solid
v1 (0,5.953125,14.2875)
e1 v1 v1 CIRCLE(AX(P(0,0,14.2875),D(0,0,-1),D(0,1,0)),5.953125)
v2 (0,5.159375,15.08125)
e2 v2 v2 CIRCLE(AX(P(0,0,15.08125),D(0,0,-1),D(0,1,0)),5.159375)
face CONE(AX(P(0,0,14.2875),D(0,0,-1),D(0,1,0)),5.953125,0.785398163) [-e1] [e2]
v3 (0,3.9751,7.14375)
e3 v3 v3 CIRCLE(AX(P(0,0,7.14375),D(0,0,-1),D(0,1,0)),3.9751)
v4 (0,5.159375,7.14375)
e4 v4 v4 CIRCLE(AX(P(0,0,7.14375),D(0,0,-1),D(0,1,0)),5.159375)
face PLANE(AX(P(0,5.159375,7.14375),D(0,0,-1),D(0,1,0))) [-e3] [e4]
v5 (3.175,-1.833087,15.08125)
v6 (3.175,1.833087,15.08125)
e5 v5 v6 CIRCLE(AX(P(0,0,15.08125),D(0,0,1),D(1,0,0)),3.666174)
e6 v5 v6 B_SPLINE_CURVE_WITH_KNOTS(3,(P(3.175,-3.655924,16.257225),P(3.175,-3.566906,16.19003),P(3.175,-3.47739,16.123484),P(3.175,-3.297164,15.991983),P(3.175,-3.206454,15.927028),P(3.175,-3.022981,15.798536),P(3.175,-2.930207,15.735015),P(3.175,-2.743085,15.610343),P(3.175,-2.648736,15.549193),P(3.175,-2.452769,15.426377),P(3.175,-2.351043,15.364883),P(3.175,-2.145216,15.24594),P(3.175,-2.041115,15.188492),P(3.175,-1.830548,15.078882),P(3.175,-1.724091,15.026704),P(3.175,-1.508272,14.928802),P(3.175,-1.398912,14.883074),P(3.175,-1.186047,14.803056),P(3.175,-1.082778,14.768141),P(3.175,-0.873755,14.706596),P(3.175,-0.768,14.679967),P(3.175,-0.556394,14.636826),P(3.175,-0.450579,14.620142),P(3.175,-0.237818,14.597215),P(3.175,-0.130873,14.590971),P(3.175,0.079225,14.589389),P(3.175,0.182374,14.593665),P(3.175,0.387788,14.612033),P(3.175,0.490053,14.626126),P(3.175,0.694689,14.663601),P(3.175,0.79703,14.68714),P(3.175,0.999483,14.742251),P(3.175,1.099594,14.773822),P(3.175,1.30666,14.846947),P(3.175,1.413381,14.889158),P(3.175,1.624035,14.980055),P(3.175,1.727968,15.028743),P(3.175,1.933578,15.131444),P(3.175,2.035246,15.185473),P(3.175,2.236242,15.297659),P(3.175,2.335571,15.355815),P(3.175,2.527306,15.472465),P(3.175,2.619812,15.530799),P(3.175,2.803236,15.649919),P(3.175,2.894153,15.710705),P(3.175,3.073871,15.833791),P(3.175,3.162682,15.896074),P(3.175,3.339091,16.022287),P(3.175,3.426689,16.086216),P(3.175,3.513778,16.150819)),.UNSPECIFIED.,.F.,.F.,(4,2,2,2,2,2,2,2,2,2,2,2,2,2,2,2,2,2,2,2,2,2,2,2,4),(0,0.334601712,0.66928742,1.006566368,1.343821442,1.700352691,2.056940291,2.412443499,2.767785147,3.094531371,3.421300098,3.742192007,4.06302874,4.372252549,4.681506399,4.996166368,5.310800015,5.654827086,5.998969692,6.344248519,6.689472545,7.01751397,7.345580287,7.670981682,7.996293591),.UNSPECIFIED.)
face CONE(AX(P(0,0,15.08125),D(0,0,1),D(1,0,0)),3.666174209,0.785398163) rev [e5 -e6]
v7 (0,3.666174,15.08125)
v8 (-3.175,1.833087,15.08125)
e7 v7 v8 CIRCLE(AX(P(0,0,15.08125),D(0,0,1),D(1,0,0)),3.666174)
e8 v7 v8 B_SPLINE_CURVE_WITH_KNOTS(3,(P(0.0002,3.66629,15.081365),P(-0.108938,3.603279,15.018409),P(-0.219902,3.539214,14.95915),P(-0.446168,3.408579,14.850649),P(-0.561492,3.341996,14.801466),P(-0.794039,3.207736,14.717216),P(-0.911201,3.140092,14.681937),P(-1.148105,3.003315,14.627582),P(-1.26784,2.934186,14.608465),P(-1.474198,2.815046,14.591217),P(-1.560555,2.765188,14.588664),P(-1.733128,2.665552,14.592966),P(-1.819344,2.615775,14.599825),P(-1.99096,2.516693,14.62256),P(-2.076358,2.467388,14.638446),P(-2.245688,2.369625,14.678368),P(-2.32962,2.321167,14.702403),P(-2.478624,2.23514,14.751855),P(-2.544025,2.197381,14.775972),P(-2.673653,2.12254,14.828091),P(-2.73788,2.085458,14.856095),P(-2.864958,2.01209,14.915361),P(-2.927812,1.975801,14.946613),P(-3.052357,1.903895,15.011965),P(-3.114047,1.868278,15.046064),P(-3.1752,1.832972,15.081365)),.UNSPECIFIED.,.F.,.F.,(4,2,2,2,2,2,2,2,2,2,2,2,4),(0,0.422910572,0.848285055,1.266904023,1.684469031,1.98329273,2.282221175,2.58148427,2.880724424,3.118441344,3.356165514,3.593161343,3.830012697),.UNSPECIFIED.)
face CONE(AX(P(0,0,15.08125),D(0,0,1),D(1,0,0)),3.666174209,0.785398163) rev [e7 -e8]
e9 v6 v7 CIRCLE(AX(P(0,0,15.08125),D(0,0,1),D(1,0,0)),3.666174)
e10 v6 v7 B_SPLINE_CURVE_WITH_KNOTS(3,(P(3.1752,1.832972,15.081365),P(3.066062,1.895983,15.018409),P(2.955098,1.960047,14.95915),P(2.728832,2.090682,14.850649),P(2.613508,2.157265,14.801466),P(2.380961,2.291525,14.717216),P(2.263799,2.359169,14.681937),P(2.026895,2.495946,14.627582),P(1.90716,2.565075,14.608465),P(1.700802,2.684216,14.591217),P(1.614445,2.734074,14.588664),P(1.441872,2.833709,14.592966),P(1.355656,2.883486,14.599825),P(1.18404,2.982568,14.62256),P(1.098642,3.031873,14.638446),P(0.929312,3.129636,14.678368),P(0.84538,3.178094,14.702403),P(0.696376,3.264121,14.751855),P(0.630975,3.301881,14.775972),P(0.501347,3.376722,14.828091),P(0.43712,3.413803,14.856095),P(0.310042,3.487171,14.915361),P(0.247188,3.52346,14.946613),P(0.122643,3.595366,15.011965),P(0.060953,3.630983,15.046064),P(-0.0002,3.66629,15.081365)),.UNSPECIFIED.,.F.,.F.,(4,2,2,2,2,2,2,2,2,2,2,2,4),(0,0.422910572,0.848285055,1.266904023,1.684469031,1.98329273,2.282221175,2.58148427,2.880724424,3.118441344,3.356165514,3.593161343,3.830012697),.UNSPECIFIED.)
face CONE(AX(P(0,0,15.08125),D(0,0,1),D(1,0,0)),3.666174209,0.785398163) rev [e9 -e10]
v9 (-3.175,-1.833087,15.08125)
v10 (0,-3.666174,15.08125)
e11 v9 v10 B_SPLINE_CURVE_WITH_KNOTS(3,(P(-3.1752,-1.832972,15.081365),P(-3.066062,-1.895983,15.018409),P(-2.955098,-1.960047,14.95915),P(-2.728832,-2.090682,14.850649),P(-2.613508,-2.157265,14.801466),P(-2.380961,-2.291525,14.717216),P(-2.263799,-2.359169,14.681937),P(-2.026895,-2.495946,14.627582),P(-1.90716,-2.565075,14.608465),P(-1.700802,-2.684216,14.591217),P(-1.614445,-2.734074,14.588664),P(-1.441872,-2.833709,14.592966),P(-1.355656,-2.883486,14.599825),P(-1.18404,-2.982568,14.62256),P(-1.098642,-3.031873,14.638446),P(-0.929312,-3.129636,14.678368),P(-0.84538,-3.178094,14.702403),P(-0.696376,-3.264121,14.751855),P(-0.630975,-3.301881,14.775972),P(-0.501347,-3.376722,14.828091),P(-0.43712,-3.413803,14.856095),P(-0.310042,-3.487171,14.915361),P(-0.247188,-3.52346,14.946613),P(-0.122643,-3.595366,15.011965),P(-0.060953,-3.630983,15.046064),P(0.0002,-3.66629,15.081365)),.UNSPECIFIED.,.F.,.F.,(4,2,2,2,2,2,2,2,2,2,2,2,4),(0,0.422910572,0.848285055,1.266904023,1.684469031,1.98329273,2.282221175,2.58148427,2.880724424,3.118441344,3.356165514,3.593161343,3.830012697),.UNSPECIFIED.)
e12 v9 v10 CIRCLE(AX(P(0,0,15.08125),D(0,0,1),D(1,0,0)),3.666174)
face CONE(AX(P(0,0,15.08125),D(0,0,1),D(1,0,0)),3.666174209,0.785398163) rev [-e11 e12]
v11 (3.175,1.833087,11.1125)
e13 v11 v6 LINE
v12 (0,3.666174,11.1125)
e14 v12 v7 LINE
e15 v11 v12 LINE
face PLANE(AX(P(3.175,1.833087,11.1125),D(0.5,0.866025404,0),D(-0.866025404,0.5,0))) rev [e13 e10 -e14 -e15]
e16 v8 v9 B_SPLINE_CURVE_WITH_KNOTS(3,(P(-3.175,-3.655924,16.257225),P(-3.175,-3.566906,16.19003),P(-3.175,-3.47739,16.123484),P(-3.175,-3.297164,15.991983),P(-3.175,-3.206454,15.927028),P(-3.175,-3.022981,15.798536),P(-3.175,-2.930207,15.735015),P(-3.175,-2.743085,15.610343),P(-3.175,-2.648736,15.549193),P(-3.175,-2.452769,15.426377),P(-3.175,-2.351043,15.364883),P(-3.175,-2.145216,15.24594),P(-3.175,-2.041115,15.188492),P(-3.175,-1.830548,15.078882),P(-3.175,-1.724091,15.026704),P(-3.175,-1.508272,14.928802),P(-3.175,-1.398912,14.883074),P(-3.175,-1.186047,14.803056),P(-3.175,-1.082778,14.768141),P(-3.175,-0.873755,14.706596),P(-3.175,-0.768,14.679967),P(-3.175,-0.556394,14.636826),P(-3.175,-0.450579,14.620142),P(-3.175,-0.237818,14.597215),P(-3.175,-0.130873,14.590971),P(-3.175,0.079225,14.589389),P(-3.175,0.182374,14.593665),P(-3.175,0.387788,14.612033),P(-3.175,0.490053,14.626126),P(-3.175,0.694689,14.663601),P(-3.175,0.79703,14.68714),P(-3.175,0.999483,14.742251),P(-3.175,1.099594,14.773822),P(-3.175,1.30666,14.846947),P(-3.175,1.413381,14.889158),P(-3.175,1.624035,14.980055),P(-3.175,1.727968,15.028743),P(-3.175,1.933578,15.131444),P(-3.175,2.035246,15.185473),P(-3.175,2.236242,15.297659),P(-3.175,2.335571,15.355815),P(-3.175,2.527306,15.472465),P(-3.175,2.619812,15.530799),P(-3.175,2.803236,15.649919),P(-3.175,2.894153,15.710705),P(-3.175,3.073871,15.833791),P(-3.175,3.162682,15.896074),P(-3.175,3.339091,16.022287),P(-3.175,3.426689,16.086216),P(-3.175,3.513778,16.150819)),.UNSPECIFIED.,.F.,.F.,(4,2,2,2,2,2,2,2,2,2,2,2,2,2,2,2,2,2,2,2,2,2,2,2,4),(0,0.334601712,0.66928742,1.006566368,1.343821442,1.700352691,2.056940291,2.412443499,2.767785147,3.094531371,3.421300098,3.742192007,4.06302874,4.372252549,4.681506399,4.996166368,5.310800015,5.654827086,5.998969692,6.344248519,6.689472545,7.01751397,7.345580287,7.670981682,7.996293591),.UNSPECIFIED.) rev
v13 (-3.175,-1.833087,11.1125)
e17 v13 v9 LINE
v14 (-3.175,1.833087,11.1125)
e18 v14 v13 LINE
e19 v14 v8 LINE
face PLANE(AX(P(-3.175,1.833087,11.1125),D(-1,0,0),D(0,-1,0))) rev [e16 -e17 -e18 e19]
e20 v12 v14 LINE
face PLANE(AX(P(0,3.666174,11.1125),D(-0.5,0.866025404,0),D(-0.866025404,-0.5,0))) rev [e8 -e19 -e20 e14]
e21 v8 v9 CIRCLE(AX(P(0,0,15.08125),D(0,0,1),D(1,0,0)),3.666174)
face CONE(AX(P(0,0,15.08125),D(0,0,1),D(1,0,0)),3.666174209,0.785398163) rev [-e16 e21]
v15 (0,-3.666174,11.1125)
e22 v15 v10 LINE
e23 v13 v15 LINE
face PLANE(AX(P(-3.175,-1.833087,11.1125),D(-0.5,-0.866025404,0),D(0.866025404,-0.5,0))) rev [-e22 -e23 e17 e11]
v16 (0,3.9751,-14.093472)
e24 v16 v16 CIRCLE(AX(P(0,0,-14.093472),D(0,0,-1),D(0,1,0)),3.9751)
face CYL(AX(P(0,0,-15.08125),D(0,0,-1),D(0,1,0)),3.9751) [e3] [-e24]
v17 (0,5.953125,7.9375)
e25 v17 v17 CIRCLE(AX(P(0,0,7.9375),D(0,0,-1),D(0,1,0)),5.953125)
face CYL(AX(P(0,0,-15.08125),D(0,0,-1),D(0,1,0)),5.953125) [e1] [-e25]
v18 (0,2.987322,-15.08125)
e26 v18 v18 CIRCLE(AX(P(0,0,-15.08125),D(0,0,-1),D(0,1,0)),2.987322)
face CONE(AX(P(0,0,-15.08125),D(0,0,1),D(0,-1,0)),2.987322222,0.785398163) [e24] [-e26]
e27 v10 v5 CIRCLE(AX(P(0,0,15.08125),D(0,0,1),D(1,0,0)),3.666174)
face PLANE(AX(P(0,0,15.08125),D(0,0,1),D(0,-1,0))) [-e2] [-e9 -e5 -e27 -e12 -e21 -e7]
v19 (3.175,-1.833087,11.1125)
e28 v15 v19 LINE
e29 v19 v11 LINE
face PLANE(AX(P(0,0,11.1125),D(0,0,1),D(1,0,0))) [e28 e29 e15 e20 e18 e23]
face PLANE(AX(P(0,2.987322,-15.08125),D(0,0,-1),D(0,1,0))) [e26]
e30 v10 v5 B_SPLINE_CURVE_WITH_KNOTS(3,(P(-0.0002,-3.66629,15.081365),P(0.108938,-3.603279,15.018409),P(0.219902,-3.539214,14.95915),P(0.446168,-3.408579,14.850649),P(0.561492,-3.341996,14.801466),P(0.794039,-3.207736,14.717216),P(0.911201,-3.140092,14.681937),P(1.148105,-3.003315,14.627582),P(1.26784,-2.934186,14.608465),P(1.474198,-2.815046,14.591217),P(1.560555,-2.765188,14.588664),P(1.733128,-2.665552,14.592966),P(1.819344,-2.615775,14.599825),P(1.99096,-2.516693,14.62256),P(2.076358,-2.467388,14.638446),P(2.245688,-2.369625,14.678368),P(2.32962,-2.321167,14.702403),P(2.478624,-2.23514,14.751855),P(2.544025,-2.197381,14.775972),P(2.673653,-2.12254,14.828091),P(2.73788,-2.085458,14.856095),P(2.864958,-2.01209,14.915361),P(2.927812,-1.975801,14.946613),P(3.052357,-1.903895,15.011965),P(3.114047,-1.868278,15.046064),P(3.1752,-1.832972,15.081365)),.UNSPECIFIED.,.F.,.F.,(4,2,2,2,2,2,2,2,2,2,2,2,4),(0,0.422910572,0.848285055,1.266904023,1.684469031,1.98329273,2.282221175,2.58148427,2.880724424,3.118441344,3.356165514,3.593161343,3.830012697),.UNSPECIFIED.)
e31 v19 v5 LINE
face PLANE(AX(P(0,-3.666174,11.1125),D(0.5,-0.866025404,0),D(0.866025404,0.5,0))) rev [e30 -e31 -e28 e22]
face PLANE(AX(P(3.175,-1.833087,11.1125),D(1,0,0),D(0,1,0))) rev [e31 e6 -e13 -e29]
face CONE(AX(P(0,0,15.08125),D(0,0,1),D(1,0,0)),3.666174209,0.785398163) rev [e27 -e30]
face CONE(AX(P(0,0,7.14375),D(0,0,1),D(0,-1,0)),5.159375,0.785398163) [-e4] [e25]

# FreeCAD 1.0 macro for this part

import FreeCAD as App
import Part
import Sketcher

V = App.Vector
Q = App.Units.Quantity


def add_polygon(sketch, points):
    """Adds a closed chain of lines whose ends are joined by coincident constraints."""
    first, n = sketch.GeometryCount, len(points)
    for a, b in zip(points, points[1:] + points[:1]):
        sketch.addGeometry(Part.LineSegment(App.Vector(*a, 0), App.Vector(*b, 0)), False)
    for i in range(n):
        sketch.addConstraint(Sketcher.Constraint("Coincident", first + i, 2, first + (i + 1) % n, 1))

doc = App.newDocument("Part")
body = doc.addObject("PartDesign::Body", "Body")

# Sketch on YZ plane
sketch1 = body.newObject("Sketcher::SketchObject", "Sketch")
sketch1.AttachmentSupport = (doc.getObject("YZ_Plane"), [""])
sketch1.MapMode = "FlatFace"
add_polygon(sketch1, [(0, 15.1), (0, -15.1), (3, -15.1), (4, -14.1), (4, 7.1), (5.2, 7.1), (6, 7.9), (6, 14.3), (5.2, 15.1)])  # lines 0-8
sketch1.addConstraint([
    Sketcher.Constraint("Vertical", 0),
    Sketcher.Constraint("Horizontal", 1),
    Sketcher.Constraint("Vertical", 3),
    Sketcher.Constraint("Horizontal", 4),
    Sketcher.Constraint("Vertical", 6),
    Sketcher.Constraint("Horizontal", 8),
    Sketcher.Constraint("Symmetric", 0, 2, 8, 2, -1, 1),
    Sketcher.Constraint("Parallel", 2, 5),
    Sketcher.Constraint("Perpendicular", 5, 7),
    Sketcher.Constraint("Vertical", 4, 2, 7, 2),
    Sketcher.Constraint("Equal", 5, 7),
    Sketcher.Constraint("DistanceY", 6, 1, 6, 2, Q("0.25 in")),
    Sketcher.Constraint("DistanceX", 8, 2, 8, 1, Q("0.203125 in")),
    Sketcher.Constraint("DistanceY", 0, 2, 0, 1, Q("1.1875 in")),
    Sketcher.Constraint("DistanceY", -1, 1, 3, 2, Q("0.28125 in")),
    Sketcher.Constraint("DistanceX", -1, 1, 2, 2, Q("0.1565 in")),
    Sketcher.Constraint("Distance", 2, Q("1.396929 mm")),
])
revolution = body.newObject("PartDesign::Revolution", "Revolution")
revolution.Profile = sketch1
revolution.ReferenceAxis = (sketch1, ["V_Axis"])
revolution.Angle = 360

# Sketch on XY plane
sketch2 = body.newObject("Sketcher::SketchObject", "Sketch001")
sketch2.AttachmentSupport = (doc.getObject("XY_Plane"), [""])
sketch2.MapMode = "FlatFace"
sketch2.AttachmentOffset = App.Placement(V(0, 0, 0.59375 * 25.4), App.Rotation())
add_polygon(sketch2, [(0, -3.7), (3.2, -1.8), (3.2, 1.8), (0, 3.7), (-3.2, 1.8), (-3.2, -1.8)])  # lines 0-5
sketch2.addConstraint([
    Sketcher.Constraint("Vertical", 1),
    Sketcher.Constraint("Vertical", 4),
    Sketcher.Constraint("Symmetric", 0, 2, 3, 2, -1, 1),
    Sketcher.Constraint("Symmetric", 2, 2, 5, 2, -1, 1),
    Sketcher.Constraint("PointOnObject", 2, 2, -2),
    Sketcher.Constraint("Parallel", 2, 5),
    Sketcher.Constraint("Horizontal", 1, 2, 3, 2),
    Sketcher.Constraint("Angle", 0, Q("30 deg")),
    Sketcher.Constraint("DistanceX", 3, 2, 1, 2, Q("0.25 in")),
    Sketcher.Constraint("DistanceY", 1, 1, 1, 2, Q("3.666174 mm")),
])
pocket1 = body.newObject("PartDesign::Pocket", "Pocket")
pocket1.Profile = sketch2
pocket1.Length = Q("0.15625 in")

# Sketch on YZ plane
sketch3 = body.newObject("Sketcher::SketchObject", "Sketch002")
sketch3.AttachmentSupport = (doc.getObject("YZ_Plane"), [""])
sketch3.MapMode = "FlatFace"
add_polygon(sketch3, [(0, 15.1), (-3.7, 15.1), (0, 11.4)])  # lines 0-2
sketch3.addConstraint([
    Sketcher.Constraint("Horizontal", 0),
    Sketcher.Constraint("Vertical", 2),
    Sketcher.Constraint("PointOnObject", 1, 2, -2),
    Sketcher.Constraint("Equal", 0, 2),
    Sketcher.Constraint("DistanceY", -1, 1, 0, 2, Q("0.59375 in")),
    Sketcher.Constraint("DistanceX", 0, 2, 0, 1, Q("3.666174 mm")),
])
groove = body.newObject("PartDesign::Groove", "Groove")
groove.Profile = sketch3
groove.ReferenceAxis = (sketch3, ["V_Axis"])
groove.Angle = 360

doc.recompute()
